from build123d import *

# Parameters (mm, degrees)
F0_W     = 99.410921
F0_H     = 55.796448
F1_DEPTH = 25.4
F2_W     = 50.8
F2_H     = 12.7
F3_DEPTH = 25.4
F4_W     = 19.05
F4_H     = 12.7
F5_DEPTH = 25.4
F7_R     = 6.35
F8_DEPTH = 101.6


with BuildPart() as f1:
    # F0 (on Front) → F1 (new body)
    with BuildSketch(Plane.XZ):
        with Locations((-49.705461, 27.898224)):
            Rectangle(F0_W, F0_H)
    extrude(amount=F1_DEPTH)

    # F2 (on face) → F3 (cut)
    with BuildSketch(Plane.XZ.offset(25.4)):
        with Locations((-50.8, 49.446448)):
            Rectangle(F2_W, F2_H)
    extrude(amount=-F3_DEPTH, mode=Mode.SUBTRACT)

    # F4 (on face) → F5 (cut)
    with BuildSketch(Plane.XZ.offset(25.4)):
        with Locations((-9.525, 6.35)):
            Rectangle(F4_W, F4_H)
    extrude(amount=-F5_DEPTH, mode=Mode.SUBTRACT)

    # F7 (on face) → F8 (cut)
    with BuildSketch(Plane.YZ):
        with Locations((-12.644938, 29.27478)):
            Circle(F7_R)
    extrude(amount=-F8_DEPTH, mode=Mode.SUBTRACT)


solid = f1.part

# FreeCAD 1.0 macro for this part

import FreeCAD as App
import Part
import Sketcher
Q = App.Units.Quantity


def add_polygon(sketch, points):
    """Adds a closed chain of lines whose ends are joined by coincident constraints."""
    first, n = sketch.GeometryCount, len(points)
    for a, b in zip(points, points[1:] + points[:1]):
        sketch.addGeometry(Part.LineSegment(App.Vector(*a, 0), App.Vector(*b, 0)), False)
    for i in range(n):
        sketch.addConstraint(Sketcher.Constraint("Coincident", first + i, 2, first + (i + 1) % n, 1))

doc = App.newDocument("Part")
params = doc.addObject("Spreadsheet::Sheet", "Params")
for row, (alias, value) in enumerate([
    ("pad1_length", "1 in"),
    ("sketch2_width", "2 in"),
    ("sketch2_height", "0.5 in"),
    ("pocket1_length", "1 in"),
    ("sketch3_height", "0.5 in"),
    ("sketch3_width", "0.75 in"),
    ("pocket2_length", "1 in"),
    ("sketch4_diameter", "0.5 in"),
    ("pocket3_length", "4 in"),
], start=1):
    params.set(f"A{row}", alias)
    params.set(f"B{row}", "=" + value)
    params.setAlias(f"B{row}", alias)

body = doc.addObject("PartDesign::Body", "Body")

sketch1 = body.newObject("Sketcher::SketchObject", "Sketch")
sketch1.AttachmentSupport = (doc.getObject("XZ_Plane"), [""])
sketch1.MapMode = "FlatFace"
add_polygon(sketch1, [(-99, 56), (-99, 0), (0, 0), (0, 56)])
sketch1.addConstraint(Sketcher.Constraint("Vertical", 0))
sketch1.addConstraint(Sketcher.Constraint("Horizontal", 1))
sketch1.addConstraint(Sketcher.Constraint("Vertical", 2))
sketch1.addConstraint(Sketcher.Constraint("Horizontal", 3))
sketch1.addConstraint(Sketcher.Constraint("Coincident", 1, 2, -1, 1))
sketch1.addConstraint(Sketcher.Constraint("DistanceX", 1, 1, 1, 2, Q("99.410921 mm")))
sketch1.addConstraint(Sketcher.Constraint("DistanceY", 0, 2, 0, 1, Q("55.796448 mm")))
pad1 = body.newObject("PartDesign::Pad", "Pad")
pad1.Profile = sketch1
pad1.setExpression("Length", "Params.pad1_length")

sketch2 = body.newObject("Sketcher::SketchObject", "Sketch001")
sketch2.AttachmentSupport = (doc.getObject("XZ_Plane"), [""])
sketch2.MapMode = "FlatFace"
sketch2.AttachmentOffset = App.Placement(App.Vector(0, 0, 1 * 25.4), App.Rotation())
add_polygon(sketch2, [(-76, 56), (-76, 43), (-25, 43), (-25, 56)])
sketch2.addConstraint(Sketcher.Constraint("Vertical", 0))
sketch2.addConstraint(Sketcher.Constraint("Horizontal", 1))
sketch2.addConstraint(Sketcher.Constraint("Vertical", 2))
sketch2.addConstraint(Sketcher.Constraint("Horizontal", 3))
sketch2.addConstraint(Sketcher.Constraint("DistanceX", 1, 1, 1, 2, Q("2 in")))
sketch2.addConstraint(Sketcher.Constraint("DistanceY", 0, 2, 0, 1, Q("0.5 in")))
sketch2.addConstraint(Sketcher.Constraint("DistanceX", 0, 2, -1, 1, Q("3 in")))
sketch2.addConstraint(Sketcher.Constraint("DistanceY", -1, 1, 0, 2, Q("43.096448 mm")))
sketch2.setExpression("Constraints[8]", "Params.sketch2_width")
sketch2.setExpression("Constraints[9]", "Params.sketch2_height")
pocket1 = body.newObject("PartDesign::Pocket", "Pocket")
pocket1.Profile = sketch2
pocket1.setExpression("Length", "Params.pocket1_length")

sketch3 = body.newObject("Sketcher::SketchObject", "Sketch002")
sketch3.AttachmentSupport = (doc.getObject("XZ_Plane"), [""])
sketch3.MapMode = "FlatFace"
sketch3.AttachmentOffset = App.Placement(App.Vector(0, 0, 1 * 25.4), App.Rotation())
add_polygon(sketch3, [(-19, 13), (-19, 0), (0, 0), (0, 13)])
sketch3.addConstraint(Sketcher.Constraint("Vertical", 0))
sketch3.addConstraint(Sketcher.Constraint("Horizontal", 1))
sketch3.addConstraint(Sketcher.Constraint("Vertical", 2))
sketch3.addConstraint(Sketcher.Constraint("Horizontal", 3))
sketch3.addConstraint(Sketcher.Constraint("Coincident", 1, 2, -1, 1))
sketch3.addConstraint(Sketcher.Constraint("DistanceY", 0, 2, 0, 1, Q("0.5 in")))
sketch3.addConstraint(Sketcher.Constraint("DistanceX", 1, 1, 1, 2, Q("0.75 in")))
sketch3.setExpression("Constraints[9]", "Params.sketch3_height")
sketch3.setExpression("Constraints[10]", "Params.sketch3_width")
pocket2 = body.newObject("PartDesign::Pocket", "Pocket001")
pocket2.Profile = sketch3
pocket2.setExpression("Length", "Params.pocket2_length")

sketch4 = body.newObject("Sketcher::SketchObject", "Sketch003")
sketch4.AttachmentSupport = (doc.getObject("YZ_Plane"), [""])
sketch4.MapMode = "FlatFace"
sketch4.addGeometry(Part.Circle(App.Vector(-13, 29, 0), App.Vector(0, 0, 1), 6), False)
sketch4.addConstraint(Sketcher.Constraint("Diameter", 0, Q("0.5 in")))
sketch4.addConstraint(Sketcher.Constraint("DistanceY", -1, 1, 0, 3, Q("29.27478 mm")))
sketch4.addConstraint(Sketcher.Constraint("DistanceX", 0, 3, -1, 1, Q("12.644938 mm")))
sketch4.setExpression("Constraints[0]", "Params.sketch4_diameter")
pocket3 = body.newObject("PartDesign::Pocket", "Pocket002")
pocket3.Profile = sketch4
pocket3.setExpression("Length", "Params.pocket3_length")

doc.recompute()
